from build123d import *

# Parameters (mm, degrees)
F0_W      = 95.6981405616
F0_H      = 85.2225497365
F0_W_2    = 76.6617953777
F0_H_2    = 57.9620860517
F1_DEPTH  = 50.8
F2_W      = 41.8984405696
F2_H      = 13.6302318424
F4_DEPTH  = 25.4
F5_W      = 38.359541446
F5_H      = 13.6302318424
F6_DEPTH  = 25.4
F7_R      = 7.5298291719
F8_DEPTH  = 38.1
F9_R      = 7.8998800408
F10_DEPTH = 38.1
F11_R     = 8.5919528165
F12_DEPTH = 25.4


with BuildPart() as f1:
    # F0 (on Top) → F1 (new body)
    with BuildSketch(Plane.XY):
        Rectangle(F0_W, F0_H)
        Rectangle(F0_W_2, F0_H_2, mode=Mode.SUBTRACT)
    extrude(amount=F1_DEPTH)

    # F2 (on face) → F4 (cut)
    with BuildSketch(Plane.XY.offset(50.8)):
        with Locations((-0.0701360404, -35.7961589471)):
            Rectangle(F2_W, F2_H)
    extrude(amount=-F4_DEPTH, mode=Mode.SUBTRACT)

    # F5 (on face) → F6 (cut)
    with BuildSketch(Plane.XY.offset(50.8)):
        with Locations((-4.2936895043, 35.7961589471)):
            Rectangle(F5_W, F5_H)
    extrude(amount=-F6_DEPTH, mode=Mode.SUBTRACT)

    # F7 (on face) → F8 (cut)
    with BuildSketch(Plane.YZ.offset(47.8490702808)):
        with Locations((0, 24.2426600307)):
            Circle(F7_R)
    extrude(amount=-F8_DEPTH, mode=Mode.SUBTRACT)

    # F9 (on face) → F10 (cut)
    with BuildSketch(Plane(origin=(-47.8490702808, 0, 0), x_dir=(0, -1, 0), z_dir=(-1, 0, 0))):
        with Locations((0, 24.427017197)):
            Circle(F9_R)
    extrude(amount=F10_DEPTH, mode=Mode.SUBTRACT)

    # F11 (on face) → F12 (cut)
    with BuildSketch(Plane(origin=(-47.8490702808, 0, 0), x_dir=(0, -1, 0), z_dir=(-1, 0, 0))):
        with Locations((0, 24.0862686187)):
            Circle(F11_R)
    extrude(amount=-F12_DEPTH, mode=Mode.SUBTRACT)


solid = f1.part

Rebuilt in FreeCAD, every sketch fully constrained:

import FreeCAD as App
import Part
import Sketcher
from FreeCAD import Vector
Q = App.Units.Quantity

doc = App.newDocument("Part")
body = doc.addObject("PartDesign::Body", "Body")

# Sketch on XY plane
sketch1 = body.newObject("Sketcher::SketchObject", "Sketch")
sketch1.AttachmentSupport = (doc.getObject("XY_Plane"), [""])
sketch1.MapMode = "FlatFace"
sketch1.addGeometry(Part.LineSegment(Vector(-47.84907, 42.611275, 0), Vector(-47.84907, -42.611275, 0)), False)
sketch1.addGeometry(Part.LineSegment(Vector(-47.84907, -42.611275, 0), Vector(47.84907, -42.611275, 0)), False)
sketch1.addGeometry(Part.LineSegment(Vector(47.84907, -42.611275, 0), Vector(47.84907, 42.611275, 0)), False)
sketch1.addGeometry(Part.LineSegment(Vector(47.84907, 42.611275, 0), Vector(-47.84907, 42.611275, 0)), False)
sketch1.addGeometry(Part.LineSegment(Vector(38.330898, -28.981043, 0), Vector(-38.330898, -28.981043, 0)), False)
sketch1.addGeometry(Part.LineSegment(Vector(-38.330898, -28.981043, 0), Vector(-38.330898, 28.981043, 0)), False)
sketch1.addGeometry(Part.LineSegment(Vector(-38.330898, 28.981043, 0), Vector(38.330898, 28.981043, 0)), False)
sketch1.addGeometry(Part.LineSegment(Vector(38.330898, 28.981043, 0), Vector(38.330898, -28.981043, 0)), False)
sketch1.addConstraint(Sketcher.Constraint("Coincident", 0, 2, 1, 1))
sketch1.addConstraint(Sketcher.Constraint("Coincident", 1, 2, 2, 1))
sketch1.addConstraint(Sketcher.Constraint("Coincident", 2, 2, 3, 1))
sketch1.addConstraint(Sketcher.Constraint("Coincident", 3, 2, 0, 1))
sketch1.addConstraint(Sketcher.Constraint("Coincident", 4, 2, 5, 1))
sketch1.addConstraint(Sketcher.Constraint("Coincident", 5, 2, 6, 1))
sketch1.addConstraint(Sketcher.Constraint("Coincident", 6, 2, 7, 1))
sketch1.addConstraint(Sketcher.Constraint("Coincident", 7, 2, 4, 1))
sketch1.addConstraint(Sketcher.Constraint("Vertical", 0))
sketch1.addConstraint(Sketcher.Constraint("Horizontal", 1))
sketch1.addConstraint(Sketcher.Constraint("Vertical", 2))
sketch1.addConstraint(Sketcher.Constraint("Horizontal", 3))
sketch1.addConstraint(Sketcher.Constraint("Horizontal", 4))
sketch1.addConstraint(Sketcher.Constraint("Vertical", 5))
sketch1.addConstraint(Sketcher.Constraint("Horizontal", 6))
sketch1.addConstraint(Sketcher.Constraint("Vertical", 7))
sketch1.addConstraint(Sketcher.Constraint("Symmetric", 0, 2, 2, 2, -1, 1))
sketch1.addConstraint(Sketcher.Constraint("Symmetric", 4, 2, 6, 2, -1, 1))
sketch1.addConstraint(Sketcher.Constraint("DistanceX", 1, 1, 1, 2, Q("95.698141 mm")))
sketch1.addConstraint(Sketcher.Constraint("DistanceY", 0, 2, 0, 1, Q("85.22255 mm")))
sketch1.addConstraint(Sketcher.Constraint("DistanceX", 4, 2, 4, 1, Q("76.661795 mm")))
sketch1.addConstraint(Sketcher.Constraint("DistanceY", 5, 1, 5, 2, Q("57.962086 mm")))
pad1 = body.newObject("PartDesign::Pad", "Pad")
pad1.Profile = sketch1
pad1.Length = Q("2 in")

# Sketch on XY plane
sketch2 = body.newObject("Sketcher::SketchObject", "Sketch001")
sketch2.AttachmentSupport = (doc.getObject("XY_Plane"), [""])
sketch2.MapMode = "FlatFace"
sketch2.AttachmentOffset = App.Placement(Vector(0, 0, 2 * 25.4), App.Rotation())
sketch2.addGeometry(Part.LineSegment(Vector(-21.019356, -28.981043, 0), Vector(-21.019356, -42.611275, 0)), False)
sketch2.addGeometry(Part.LineSegment(Vector(-21.019356, -42.611275, 0), Vector(20.879084, -42.611275, 0)), False)
sketch2.addGeometry(Part.LineSegment(Vector(20.879084, -42.611275, 0), Vector(20.879084, -28.981043, 0)), False)
sketch2.addGeometry(Part.LineSegment(Vector(20.879084, -28.981043, 0), Vector(-21.019356, -28.981043, 0)), False)
sketch2.addConstraint(Sketcher.Constraint("Coincident", 0, 2, 1, 1))
sketch2.addConstraint(Sketcher.Constraint("Coincident", 1, 2, 2, 1))
sketch2.addConstraint(Sketcher.Constraint("Coincident", 2, 2, 3, 1))
sketch2.addConstraint(Sketcher.Constraint("Coincident", 3, 2, 0, 1))
sketch2.addConstraint(Sketcher.Constraint("Vertical", 0))
sketch2.addConstraint(Sketcher.Constraint("Horizontal", 1))
sketch2.addConstraint(Sketcher.Constraint("Vertical", 2))
sketch2.addConstraint(Sketcher.Constraint("Horizontal", 3))
sketch2.addConstraint(Sketcher.Constraint("DistanceX", 1, 1, 1, 2, Q("41.898441 mm")))
sketch2.addConstraint(Sketcher.Constraint("DistanceY", 0, 2, 0, 1, Q("13.630232 mm")))
sketch2.addConstraint(Sketcher.Constraint("DistanceX", 0, 2, -1, 1, Q("21.019356 mm")))
sketch2.addConstraint(Sketcher.Constraint("DistanceY", 0, 2, -1, 1, Q("42.611275 mm")))
pocket1 = body.newObject("PartDesign::Pocket", "Pocket")
pocket1.Profile = sketch2
pocket1.Length = Q("1 in")

# Sketch on XY plane
sketch3 = body.newObject("Sketcher::SketchObject", "Sketch002")
sketch3.AttachmentSupport = (doc.getObject("XY_Plane"), [""])
sketch3.MapMode = "FlatFace"
sketch3.AttachmentOffset = App.Placement(Vector(0, 0, 2 * 25.4), App.Rotation())
sketch3.addGeometry(Part.LineSegment(Vector(-23.47346, 42.611275, 0), Vector(-23.47346, 28.981043, 0)), False)
sketch3.addGeometry(Part.LineSegment(Vector(-23.47346, 28.981043, 0), Vector(14.886081, 28.981043, 0)), False)
sketch3.addGeometry(Part.LineSegment(Vector(14.886081, 28.981043, 0), Vector(14.886081, 42.611275, 0)), False)
sketch3.addGeometry(Part.LineSegment(Vector(14.886081, 42.611275, 0), Vector(-23.47346, 42.611275, 0)), False)
sketch3.addConstraint(Sketcher.Constraint("Coincident", 0, 2, 1, 1))
sketch3.addConstraint(Sketcher.Constraint("Coincident", 1, 2, 2, 1))
sketch3.addConstraint(Sketcher.Constraint("Coincident", 2, 2, 3, 1))
sketch3.addConstraint(Sketcher.Constraint("Coincident", 3, 2, 0, 1))
sketch3.addConstraint(Sketcher.Constraint("Vertical", 0))
sketch3.addConstraint(Sketcher.Constraint("Horizontal", 1))
sketch3.addConstraint(Sketcher.Constraint("Vertical", 2))
sketch3.addConstraint(Sketcher.Constraint("Horizontal", 3))
sketch3.addConstraint(Sketcher.Constraint("DistanceX", 1, 1, 1, 2, Q("38.359541 mm")))
sketch3.addConstraint(Sketcher.Constraint("DistanceY", 0, 2, 0, 1, Q("13.630232 mm")))
sketch3.addConstraint(Sketcher.Constraint("DistanceX", 0, 2, -1, 1, Q("23.47346 mm")))
sketch3.addConstraint(Sketcher.Constraint("DistanceY", -1, 1, 0, 2, Q("28.981043 mm")))
pocket2 = body.newObject("PartDesign::Pocket", "Pocket001")
pocket2.Profile = sketch3
pocket2.Length = Q("1 in")

# Sketch on YZ plane
sketch4 = body.newObject("Sketcher::SketchObject", "Sketch003")
sketch4.AttachmentSupport = (doc.getObject("YZ_Plane"), [""])
sketch4.MapMode = "FlatFace"
sketch4.AttachmentOffset = App.Placement(Vector(0, 0, 47.84907), App.Rotation())
sketch4.addGeometry(Part.Circle(Vector(0, 24.24266, 0), Vector(0, 0, 1), 7.529829), False)
sketch4.addConstraint(Sketcher.Constraint("PointOnObject", 0, 3, -2))
sketch4.addConstraint(Sketcher.Constraint("Diameter", 0, Q("0.5928999 in")))
sketch4.addConstraint(Sketcher.Constraint("DistanceY", -1, 1, 0, 3, Q("24.24266 mm")))
pocket3 = body.newObject("PartDesign::Pocket", "Pocket002")
pocket3.Profile = sketch4
pocket3.Length = Q("1.5 in")

# Sketch on YZ plane
sketch5 = body.newObject("Sketcher::SketchObject", "Sketch004")
sketch5.AttachmentSupport = (doc.getObject("YZ_Plane"), [""])
sketch5.MapMode = "FlatFace"
sketch5.AttachmentOffset = App.Placement(Vector(0, 0, -47.84907), App.Rotation())
sketch5.addGeometry(Part.Circle(Vector(0, 24.427017, 0), Vector(0, 0, 1), 7.89988), False)
sketch5.addConstraint(Sketcher.Constraint("PointOnObject", 0, 3, -2))
sketch5.addConstraint(Sketcher.Constraint("Diameter", 0, Q("15.79976 mm")))
sketch5.addConstraint(Sketcher.Constraint("DistanceY", -1, 1, 0, 3, Q("24.427017 mm")))
pocket4 = body.newObject("PartDesign::Pocket", "Pocket003")
pocket4.Profile = sketch5
pocket4.Length = Q("1.5 in")

# Sketch on YZ plane
sketch6 = body.newObject("Sketcher::SketchObject", "Sketch005")
sketch6.AttachmentSupport = (doc.getObject("YZ_Plane"), [""])
sketch6.MapMode = "FlatFace"
sketch6.AttachmentOffset = App.Placement(Vector(0, 0, -47.84907), App.Rotation())
sketch6.addGeometry(Part.Circle(Vector(0, 24.086269, 0), Vector(0, 0, 1), 8.591953), False)
sketch6.addConstraint(Sketcher.Constraint("PointOnObject", 0, 3, -2))
sketch6.addConstraint(Sketcher.Constraint("Diameter", 0, Q("17.183906 mm")))
sketch6.addConstraint(Sketcher.Constraint("DistanceY", -1, 1, 0, 3, Q("24.086269 mm")))
pocket5 = body.newObject("PartDesign::Pocket", "Pocket004")
pocket5.Profile = sketch6
pocket5.Length = Q("1 in")
pocket5.Reversed = True

doc.recompute()
